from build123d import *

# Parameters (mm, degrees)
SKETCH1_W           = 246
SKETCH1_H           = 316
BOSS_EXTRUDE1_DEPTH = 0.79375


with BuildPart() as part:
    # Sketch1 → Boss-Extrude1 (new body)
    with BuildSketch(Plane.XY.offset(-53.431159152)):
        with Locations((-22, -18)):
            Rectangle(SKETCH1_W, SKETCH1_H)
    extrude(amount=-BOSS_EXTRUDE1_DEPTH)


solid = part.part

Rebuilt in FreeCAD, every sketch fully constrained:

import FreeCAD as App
import Part
import Sketcher


def add_polygon(sketch, points):
    """Adds a closed chain of lines whose ends are joined by coincident constraints."""
    first, n = sketch.GeometryCount, len(points)
    for a, b in zip(points, points[1:] + points[:1]):
        sketch.addGeometry(Part.LineSegment(App.Vector(*a, 0), App.Vector(*b, 0)), False)
    for i in range(n):
        sketch.addConstraint(Sketcher.Constraint("Coincident", first + i, 2, first + (i + 1) % n, 1))

doc = App.newDocument("Part")
body = doc.addObject("PartDesign::Body", "Body")

# Sketch on XY plane
sketch1 = doc.addObject("Sketcher::SketchObject", "Sketch")
body.addObject(sketch1)
sketch1.AttachmentSupport = (doc.XY_Plane, [""])
sketch1.MapMode = "FlatFace"
sketch1.AttachmentOffset = App.Placement(App.Vector(0, 0, -53.431159), App.Rotation())
add_polygon(sketch1, [(-145, 140), (-145, -176), (101, -176), (101, 140)])  # lines 0-3
sketch1.addConstraint([
    Sketcher.Constraint("Vertical", 0),
    Sketcher.Constraint("Horizontal", 1),
    Sketcher.Constraint("Vertical", 2),
    Sketcher.Constraint("Horizontal", 3),
    Sketcher.Constraint("DistanceX", 1, 1, 1, 2, 246.0),
    Sketcher.Constraint("DistanceY", 0, 2, 0, 1, 316.0),
    Sketcher.Constraint("DistanceX", 0, 2, -1, 1, 145.0),
    Sketcher.Constraint("DistanceY", 0, 2, -1, 1, 176.0),
])
pad1 = doc.addObject("PartDesign::Pad", "Pad")
body.addObject(pad1)
pad1.Profile = sketch1
pad1.Length = 0.79375
pad1.Reversed = True

doc.recompute()
